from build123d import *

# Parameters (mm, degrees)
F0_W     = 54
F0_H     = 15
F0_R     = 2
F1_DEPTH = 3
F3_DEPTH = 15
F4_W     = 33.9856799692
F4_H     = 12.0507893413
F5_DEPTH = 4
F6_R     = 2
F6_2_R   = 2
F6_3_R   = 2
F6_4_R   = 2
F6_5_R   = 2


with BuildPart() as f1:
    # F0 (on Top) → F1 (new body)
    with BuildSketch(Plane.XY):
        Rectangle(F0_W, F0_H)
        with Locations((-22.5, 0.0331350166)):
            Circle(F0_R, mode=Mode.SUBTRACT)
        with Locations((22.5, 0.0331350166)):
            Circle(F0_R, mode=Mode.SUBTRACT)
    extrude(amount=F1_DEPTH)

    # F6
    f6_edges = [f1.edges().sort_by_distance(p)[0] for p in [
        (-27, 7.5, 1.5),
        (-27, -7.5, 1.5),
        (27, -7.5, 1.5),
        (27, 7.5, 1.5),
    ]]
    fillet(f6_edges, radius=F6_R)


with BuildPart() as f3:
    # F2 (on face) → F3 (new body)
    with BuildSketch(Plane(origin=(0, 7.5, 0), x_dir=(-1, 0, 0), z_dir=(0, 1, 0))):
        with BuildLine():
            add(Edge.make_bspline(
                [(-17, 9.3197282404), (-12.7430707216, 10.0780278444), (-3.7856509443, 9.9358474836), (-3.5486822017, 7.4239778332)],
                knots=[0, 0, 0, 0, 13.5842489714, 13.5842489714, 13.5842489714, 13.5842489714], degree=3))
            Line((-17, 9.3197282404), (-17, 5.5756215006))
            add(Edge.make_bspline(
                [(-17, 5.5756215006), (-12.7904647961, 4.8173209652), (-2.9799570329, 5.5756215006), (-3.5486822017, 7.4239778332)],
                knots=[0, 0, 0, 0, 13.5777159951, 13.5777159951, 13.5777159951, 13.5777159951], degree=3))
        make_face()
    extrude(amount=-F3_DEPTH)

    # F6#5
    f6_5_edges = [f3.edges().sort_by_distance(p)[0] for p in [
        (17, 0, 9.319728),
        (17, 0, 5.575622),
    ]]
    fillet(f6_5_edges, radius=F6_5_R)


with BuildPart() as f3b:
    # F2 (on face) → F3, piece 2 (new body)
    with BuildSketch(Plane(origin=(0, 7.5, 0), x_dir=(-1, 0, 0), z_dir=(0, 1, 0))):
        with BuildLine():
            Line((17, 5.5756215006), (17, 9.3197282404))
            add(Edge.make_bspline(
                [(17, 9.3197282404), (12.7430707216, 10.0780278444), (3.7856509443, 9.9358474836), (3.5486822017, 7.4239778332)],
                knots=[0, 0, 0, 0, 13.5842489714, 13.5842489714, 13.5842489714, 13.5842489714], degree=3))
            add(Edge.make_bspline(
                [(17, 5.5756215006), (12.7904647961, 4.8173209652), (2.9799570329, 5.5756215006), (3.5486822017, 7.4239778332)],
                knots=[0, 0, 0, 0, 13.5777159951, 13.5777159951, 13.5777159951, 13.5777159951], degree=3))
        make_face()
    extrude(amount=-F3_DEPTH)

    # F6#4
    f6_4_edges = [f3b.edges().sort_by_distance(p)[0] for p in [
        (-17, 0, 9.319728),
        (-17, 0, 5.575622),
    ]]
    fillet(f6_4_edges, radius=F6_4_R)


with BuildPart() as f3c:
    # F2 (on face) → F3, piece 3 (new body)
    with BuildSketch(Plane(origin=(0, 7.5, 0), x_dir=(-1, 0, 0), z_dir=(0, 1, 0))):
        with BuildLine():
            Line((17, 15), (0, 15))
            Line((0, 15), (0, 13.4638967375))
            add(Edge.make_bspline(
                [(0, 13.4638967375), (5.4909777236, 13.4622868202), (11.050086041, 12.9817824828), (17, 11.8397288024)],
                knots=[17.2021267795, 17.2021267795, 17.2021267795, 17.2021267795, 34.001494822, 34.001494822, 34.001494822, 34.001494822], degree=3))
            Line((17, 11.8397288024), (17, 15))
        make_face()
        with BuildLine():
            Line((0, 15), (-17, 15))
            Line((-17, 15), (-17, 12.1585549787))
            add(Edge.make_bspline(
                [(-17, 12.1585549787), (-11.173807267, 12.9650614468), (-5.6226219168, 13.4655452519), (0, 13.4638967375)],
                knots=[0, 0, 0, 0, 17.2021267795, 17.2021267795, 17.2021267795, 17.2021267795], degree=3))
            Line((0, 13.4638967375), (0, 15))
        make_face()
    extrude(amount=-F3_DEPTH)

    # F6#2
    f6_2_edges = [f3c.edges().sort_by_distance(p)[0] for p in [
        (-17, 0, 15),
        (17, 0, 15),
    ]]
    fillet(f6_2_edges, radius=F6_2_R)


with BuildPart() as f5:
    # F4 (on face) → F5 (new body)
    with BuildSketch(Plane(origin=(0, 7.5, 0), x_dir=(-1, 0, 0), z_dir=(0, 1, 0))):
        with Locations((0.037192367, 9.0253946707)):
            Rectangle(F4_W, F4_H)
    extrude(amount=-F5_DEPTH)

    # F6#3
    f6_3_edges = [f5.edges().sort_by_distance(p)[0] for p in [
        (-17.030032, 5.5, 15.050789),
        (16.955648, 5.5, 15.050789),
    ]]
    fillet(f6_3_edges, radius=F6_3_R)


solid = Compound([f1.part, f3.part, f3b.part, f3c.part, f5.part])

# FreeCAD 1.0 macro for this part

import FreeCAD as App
import Part
import Sketcher


def edges_at(feature, points):
    """Names of the edges that pass closest to the given points."""
    edges = feature.Shape.Edges
    near = lambda p: min(range(len(edges)), key=lambda i: edges[i].distToShape(Part.Vertex(*p))[0])
    return sorted({f"Edge{near(p) + 1}" for p in points})


def add_polygon(sketch, points):
    """Adds a closed chain of lines whose ends are joined by coincident constraints."""
    first, n = sketch.GeometryCount, len(points)
    for a, b in zip(points, points[1:] + points[:1]):
        sketch.addGeometry(Part.LineSegment(App.Vector(*a, 0), App.Vector(*b, 0)), False)
    for i in range(n):
        sketch.addConstraint(Sketcher.Constraint("Coincident", first + i, 2, first + (i + 1) % n, 1))

doc = App.newDocument("Part")
body = doc.addObject("PartDesign::Body", "Body")

sketch1 = body.newObject("Sketcher::SketchObject", "Sketch")
sketch1.AttachmentSupport = (doc.getObject("XY_Plane"), [""])
sketch1.MapMode = "FlatFace"
add_polygon(sketch1, [(-27, 7.5), (-27, -7.5), (27, -7.5), (27, 7.5)])
sketch1.addGeometry(Part.Circle(App.Vector(-22.5, 0, 0), App.Vector(0, 0, 1), 2), False)
sketch1.addGeometry(Part.Circle(App.Vector(22.5, 0, 0), App.Vector(0, 0, 1), 2), False)
sketch1.addConstraint(Sketcher.Constraint("Vertical", 0))
sketch1.addConstraint(Sketcher.Constraint("Horizontal", 1))
sketch1.addConstraint(Sketcher.Constraint("Vertical", 2))
sketch1.addConstraint(Sketcher.Constraint("Horizontal", 3))
sketch1.addConstraint(Sketcher.Constraint("Equal", 4, 5))
sketch1.addConstraint(Sketcher.Constraint("Symmetric", 0, 2, 2, 2, -1, 1))
sketch1.addConstraint(Sketcher.Constraint("Symmetric", 4, 3, 5, 3, -2))
sketch1.addConstraint(Sketcher.Constraint("Diameter", 4, 4.0))
sketch1.addConstraint(Sketcher.Constraint("DistanceX", 1, 1, 1, 2, 54.0))
sketch1.addConstraint(Sketcher.Constraint("DistanceY", 0, 2, 0, 1, 15.0))
sketch1.addConstraint(Sketcher.Constraint("DistanceX", 4, 3, 5, 3, 45.0))
sketch1.addConstraint(Sketcher.Constraint("DistanceY", -1, 1, 4, 3, 0.033135))
pad1 = body.newObject("PartDesign::Pad", "Pad")
pad1.Profile = sketch1
pad1.Length = 3
doc.recompute()

fillet = body.newObject("PartDesign::Fillet", "Fillet")
fillet.Base = (pad1, edges_at(pad1, [
    (-27, 7.5, 1.5),
    (-27, -7.5, 1.5),
    (27, -7.5, 1.5),
    (27, 7.5, 1.5),
]))
fillet.Radius = 2
body2 = doc.addObject("PartDesign::Body", "Body001")

sketch2 = body2.newObject("Sketcher::SketchObject", "Sketch001")
sketch2.AttachmentSupport = (doc.getObject("XZ_Plane001"), [""])
sketch2.MapMode = "FlatFace"
sketch2.AttachmentOffset = App.Placement(App.Vector(0, 0, -7.5), App.Rotation())
sketch2.addGeometry(Part.BSplineCurve([App.Vector(17, 9.319728, 0), App.Vector(12.743071, 10.078028, 0), App.Vector(3.785651, 9.935847, 0), App.Vector(3.548682, 7.423978, 0)], [4, 4], [0, 13.584248971], False, 3, [1, 1, 1, 1], False), False)
sketch2.addGeometry(Part.LineSegment(App.Vector(17, 9.319728, 0), App.Vector(17, 5.575622, 0)), False)
sketch2.addGeometry(Part.BSplineCurve([App.Vector(17, 5.575622, 0), App.Vector(12.790465, 4.817321, 0), App.Vector(2.979957, 5.575622, 0), App.Vector(3.548682, 7.423978, 0)], [4, 4], [0, 13.577715995], False, 3, [1, 1, 1, 1], False), False)
sketch2.addConstraint(Sketcher.Constraint("Block", 0))
sketch2.addConstraint(Sketcher.Constraint("Block", 2))
sketch2.addConstraint(Sketcher.Constraint("Coincident", 0, 1, 1, 1))
sketch2.addConstraint(Sketcher.Constraint("Coincident", 1, 2, 2, 1))
pad2 = body2.newObject("PartDesign::Pad", "Pad001")
pad2.Profile = sketch2
pad2.Length = 15
doc.recompute()

fillet2 = body2.newObject("PartDesign::Fillet", "Fillet001")
fillet2.Base = (pad2, edges_at(pad2, [(17, 0, 9.32), (17, 0, 5.576)]))
fillet2.Radius = 2
body3 = doc.addObject("PartDesign::Body", "Body002")

sketch3 = body3.newObject("Sketcher::SketchObject", "Sketch002")
sketch3.AttachmentSupport = (doc.getObject("XZ_Plane002"), [""])
sketch3.MapMode = "FlatFace"
sketch3.AttachmentOffset = App.Placement(App.Vector(0, 0, -7.5), App.Rotation())
sketch3.addGeometry(Part.LineSegment(App.Vector(-17, 5.575622, 0), App.Vector(-17, 9.319728, 0)), False)
sketch3.addGeometry(Part.BSplineCurve([App.Vector(-17, 9.319728, 0), App.Vector(-12.743071, 10.078028, 0), App.Vector(-3.785651, 9.935847, 0), App.Vector(-3.548682, 7.423978, 0)], [4, 4], [0, 13.584248971], False, 3, [1, 1, 1, 1], False), False)
sketch3.addGeometry(Part.BSplineCurve([App.Vector(-17, 5.575622, 0), App.Vector(-12.790465, 4.817321, 0), App.Vector(-2.979957, 5.575622, 0), App.Vector(-3.548682, 7.423978, 0)], [4, 4], [0, 13.577715995], False, 3, [1, 1, 1, 1], False), False)
sketch3.addConstraint(Sketcher.Constraint("Block", 1))
sketch3.addConstraint(Sketcher.Constraint("Block", 2))
sketch3.addConstraint(Sketcher.Constraint("Coincident", 0, 2, 1, 1))
sketch3.addConstraint(Sketcher.Constraint("Coincident", 2, 1, 0, 1))
pad3 = body3.newObject("PartDesign::Pad", "Pad002")
pad3.Profile = sketch3
pad3.Length = 15
doc.recompute()

fillet3 = body3.newObject("PartDesign::Fillet", "Fillet002")
fillet3.Base = (pad3, edges_at(pad3, [(-17, 0, 9.32), (-17, 0, 5.576)]))
fillet3.Radius = 2
body4 = doc.addObject("PartDesign::Body", "Body003")

sketch4 = body4.newObject("Sketcher::SketchObject", "Sketch003")
sketch4.AttachmentSupport = (doc.getObject("XZ_Plane003"), [""])
sketch4.MapMode = "FlatFace"
sketch4.AttachmentOffset = App.Placement(App.Vector(0, 0, -7.5), App.Rotation())
sketch4.addGeometry(Part.LineSegment(App.Vector(-17, 15, 0), App.Vector(17, 15, 0)), False)
sketch4.addGeometry(Part.LineSegment(App.Vector(17, 15, 0), App.Vector(17, 12.158555, 0)), False)
sketch4.addGeometry(Part.BSplineCurve([App.Vector(17, 12.158555, 0), App.Vector(11.173807, 12.965061, 0), App.Vector(5.622622, 13.465545, 0), App.Vector(0, 13.463897, 0)], [4, 4], [0, 17.202126779], False, 3, [1, 1, 1, 1], False), False)
sketch4.addGeometry(Part.BSplineCurve([App.Vector(0, 13.463897, 0), App.Vector(-5.490978, 13.462287, 0), App.Vector(-11.050086, 12.981782, 0), App.Vector(-17, 11.839729, 0)], [4, 4], [17.202126779, 34.001494822], False, 3, [1, 1, 1, 1], False), False)
sketch4.addGeometry(Part.LineSegment(App.Vector(-17, 11.839729, 0), App.Vector(-17, 15, 0)), False)
sketch4.addConstraint(Sketcher.Constraint("Block", 2))
sketch4.addConstraint(Sketcher.Constraint("Block", 3))
sketch4.addConstraint(Sketcher.Constraint("Coincident", 0, 2, 1, 1))
sketch4.addConstraint(Sketcher.Constraint("Coincident", 1, 2, 2, 1))
sketch4.addConstraint(Sketcher.Constraint("Coincident", 3, 2, 4, 1))
sketch4.addConstraint(Sketcher.Constraint("Coincident", 4, 2, 0, 1))
sketch4.addConstraint(Sketcher.Constraint("Horizontal", 0))
sketch4.addConstraint(Sketcher.Constraint("Vertical", 1))
sketch4.addConstraint(Sketcher.Constraint("Vertical", 4))
sketch4.addConstraint(Sketcher.Constraint("DistanceY", -1, 1, 0, 2, 15.0))
pad4 = body4.newObject("PartDesign::Pad", "Pad003")
pad4.Profile = sketch4
pad4.Length = 15
doc.recompute()

fillet4 = body4.newObject("PartDesign::Fillet", "Fillet003")
fillet4.Base = (pad4, edges_at(pad4, [(-17, 0, 15), (17, 0, 15)]))
fillet4.Radius = 2
body5 = doc.addObject("PartDesign::Body", "Body004")

sketch5 = body5.newObject("Sketcher::SketchObject", "Sketch004")
sketch5.AttachmentSupport = (doc.getObject("XZ_Plane004"), [""])
sketch5.MapMode = "FlatFace"
sketch5.AttachmentOffset = App.Placement(App.Vector(0, 0, -7.5), App.Rotation())
add_polygon(sketch5, [(17, 15), (17, 3), (-17, 3), (-17, 15)])
sketch5.addConstraint(Sketcher.Constraint("Vertical", 0))
sketch5.addConstraint(Sketcher.Constraint("Horizontal", 1))
sketch5.addConstraint(Sketcher.Constraint("Vertical", 2))
sketch5.addConstraint(Sketcher.Constraint("Horizontal", 3))
sketch5.addConstraint(Sketcher.Constraint("DistanceY", -1, 1, 0, 2, 3.0))
sketch5.addConstraint(Sketcher.Constraint("DistanceX", 1, 2, 1, 1, 33.98568))
sketch5.addConstraint(Sketcher.Constraint("DistanceY", 0, 2, 0, 1, 12.050789))
sketch5.addConstraint(Sketcher.Constraint("DistanceX", -1, 1, 0, 2, 16.955648))
pad5 = body5.newObject("PartDesign::Pad", "Pad004")
pad5.Profile = sketch5
pad5.Length = 4
doc.recompute()

fillet5 = body5.newObject("PartDesign::Fillet", "Fillet004")
fillet5.Base = (pad5, edges_at(pad5, [(-17.03, 5.5, 15.051), (16.956, 5.5, 15.051)]))
fillet5.Radius = 2

doc.recompute()
